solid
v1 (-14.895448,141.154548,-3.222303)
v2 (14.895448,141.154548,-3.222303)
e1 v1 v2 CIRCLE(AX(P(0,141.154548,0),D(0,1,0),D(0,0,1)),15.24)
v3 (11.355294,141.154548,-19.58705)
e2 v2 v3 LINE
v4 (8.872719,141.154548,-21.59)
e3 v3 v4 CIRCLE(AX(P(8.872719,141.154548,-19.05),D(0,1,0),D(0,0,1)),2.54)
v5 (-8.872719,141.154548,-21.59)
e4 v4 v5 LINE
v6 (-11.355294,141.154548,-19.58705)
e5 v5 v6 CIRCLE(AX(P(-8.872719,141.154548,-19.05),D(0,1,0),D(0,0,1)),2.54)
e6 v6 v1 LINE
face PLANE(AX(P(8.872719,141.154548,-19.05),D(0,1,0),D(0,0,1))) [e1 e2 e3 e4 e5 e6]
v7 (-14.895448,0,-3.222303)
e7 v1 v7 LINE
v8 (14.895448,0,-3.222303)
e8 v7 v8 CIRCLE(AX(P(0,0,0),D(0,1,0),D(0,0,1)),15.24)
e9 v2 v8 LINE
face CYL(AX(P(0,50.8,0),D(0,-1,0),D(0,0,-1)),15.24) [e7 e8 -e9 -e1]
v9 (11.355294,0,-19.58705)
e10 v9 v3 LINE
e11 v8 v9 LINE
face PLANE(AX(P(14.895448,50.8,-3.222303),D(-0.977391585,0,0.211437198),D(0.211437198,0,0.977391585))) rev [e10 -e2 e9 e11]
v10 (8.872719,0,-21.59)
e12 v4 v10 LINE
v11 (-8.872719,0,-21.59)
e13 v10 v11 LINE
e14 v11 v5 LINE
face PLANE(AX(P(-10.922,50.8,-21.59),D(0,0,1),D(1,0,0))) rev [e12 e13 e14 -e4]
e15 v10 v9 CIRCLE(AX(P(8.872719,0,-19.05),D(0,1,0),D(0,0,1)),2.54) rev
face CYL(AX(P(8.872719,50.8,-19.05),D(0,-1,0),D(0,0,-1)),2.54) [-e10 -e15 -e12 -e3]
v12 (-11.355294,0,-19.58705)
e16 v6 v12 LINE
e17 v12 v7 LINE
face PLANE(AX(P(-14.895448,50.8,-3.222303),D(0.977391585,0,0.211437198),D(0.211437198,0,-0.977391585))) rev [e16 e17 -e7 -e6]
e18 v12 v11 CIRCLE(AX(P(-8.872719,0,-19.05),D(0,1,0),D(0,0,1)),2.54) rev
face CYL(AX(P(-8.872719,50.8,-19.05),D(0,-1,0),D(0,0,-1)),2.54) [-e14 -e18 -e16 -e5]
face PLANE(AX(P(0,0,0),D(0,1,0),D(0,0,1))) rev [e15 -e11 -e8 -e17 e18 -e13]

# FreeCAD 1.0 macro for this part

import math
import FreeCAD as App
import Part
import Sketcher
from FreeCAD import Vector
Q = App.Units.Quantity


def edges_at(feature, points):
    """Names of the edges that pass closest to the given points."""
    edges = feature.Shape.Edges
    near = lambda p: min(range(len(edges)), key=lambda i: edges[i].distToShape(Part.Vertex(*p))[0])
    return sorted({f"Edge{near(p) + 1}" for p in points})

doc = App.newDocument("Part")
body = doc.addObject("PartDesign::Body", "Body")

sketch1 = body.newObject("Sketcher::SketchObject", "Sketch")
sketch1.AttachmentSupport = (doc.getObject("XZ_Plane"), [""])
sketch1.MapMode = "FlatFace"
sketch1.addGeometry([
    Part.LineSegment(Vector(11, -22, 0), Vector(-11, -22, 0)),
    Part.LineSegment(Vector(-11, -22, 0), Vector(-15, -3, 0)),
    Part.ArcOfCircle(Part.Circle(Vector(0, 0, 0), Vector(0, 0, 1), 15), math.radians(-12), math.radians(192)),
    Part.LineSegment(Vector(15, -3, 0), Vector(11, -22, 0)),
], False)
sketch1.addConstraint([
    Sketcher.Constraint("Coincident", 0, 2, 1, 1),
    Sketcher.Constraint("Tangent", 1, 2, 2, 2),
    Sketcher.Constraint("Tangent", 2, 1, 3, 1),
    Sketcher.Constraint("Coincident", 3, 2, 0, 1),
    Sketcher.Constraint("Horizontal", 0),
    Sketcher.Constraint("Coincident", 2, 3, -1, 1),
    Sketcher.Constraint("Horizontal", 1, 2, 2, 1),
    Sketcher.Constraint("Radius", 2, Q("0.6 in")),
    Sketcher.Constraint("DistanceX", 0, 2, 0, 1, Q("0.86 in")),
    Sketcher.Constraint("DistanceY", 0, 2, -1, 1, Q("0.85 in")),
])
pad1 = body.newObject("PartDesign::Pad", "Pad")
pad1.Profile = sketch1
pad1.Length = Q("2 in")
pad1.Reversed = True
doc.recompute()

fillet = body.newObject("PartDesign::Fillet", "Fillet")
fillet.Base = (pad1, edges_at(pad1, [(-10.922, 25.4, -21.59), (10.922, 25.4, -21.59)]))
fillet.Radius = Q("0.1 in")

sketch2 = body.newObject("Sketcher::SketchObject", "Sketch001")
sketch2.AttachmentSupport = (doc.getObject("XZ_Plane"), [""])
sketch2.MapMode = "FlatFace"
sketch2.AttachmentOffset = App.Placement(Vector(0, 0, -2 * 25.4), App.Rotation())
sketch2.addGeometry([
    Part.LineSegment(Vector(8.9, -21.6, 0), Vector(-8.9, -21.6, 0)),
    Part.ArcOfCircle(Part.Circle(Vector(-8.9, -19, 0), Vector(0, 0, 1), 2.5), math.radians(-168), math.radians(-90)),
    Part.LineSegment(Vector(-11.4, -19.6, 0), Vector(-14.9, -3.2, 0)),
    Part.ArcOfCircle(Part.Circle(Vector(0, 0, 0), Vector(0, 0, 1), 15.2), math.radians(-12), math.radians(192)),
    Part.LineSegment(Vector(14.9, -3.2, 0), Vector(11.4, -19.6, 0)),
    Part.ArcOfCircle(Part.Circle(Vector(8.9, -19, 0), Vector(0, 0, 1), 2.5), math.radians(-90), math.radians(-12)),
], False)
sketch2.addConstraint([
    Sketcher.Constraint("Tangent", 0, 2, 1, 2),
    Sketcher.Constraint("Tangent", 1, 1, 2, 1),
    Sketcher.Constraint("Tangent", 2, 2, 3, 2),
    Sketcher.Constraint("Tangent", 3, 1, 4, 1),
    Sketcher.Constraint("Tangent", 4, 2, 5, 2),
    Sketcher.Constraint("Tangent", 5, 1, 0, 1),
    Sketcher.Constraint("Horizontal", 0),
    Sketcher.Constraint("Coincident", 3, 3, -1, 1),
    Sketcher.Constraint("Equal", 1, 5),
    Sketcher.Constraint("Horizontal", 2, 2, 3, 1),
    Sketcher.Constraint("Radius", 1, Q("0.1 in")),
    Sketcher.Constraint("Radius", 3, Q("0.6 in")),
    Sketcher.Constraint("DistanceY", 1, 3, -1, 1, Q("0.75 in")),
    Sketcher.Constraint("DistanceX", 0, 2, 0, 1, Q("17.745439 mm")),
])
pad2 = body.newObject("PartDesign::Pad", "Pad001")
pad2.Profile = sketch2
pad2.Length = 90.354548
pad2.Reversed = True

doc.recompute()
